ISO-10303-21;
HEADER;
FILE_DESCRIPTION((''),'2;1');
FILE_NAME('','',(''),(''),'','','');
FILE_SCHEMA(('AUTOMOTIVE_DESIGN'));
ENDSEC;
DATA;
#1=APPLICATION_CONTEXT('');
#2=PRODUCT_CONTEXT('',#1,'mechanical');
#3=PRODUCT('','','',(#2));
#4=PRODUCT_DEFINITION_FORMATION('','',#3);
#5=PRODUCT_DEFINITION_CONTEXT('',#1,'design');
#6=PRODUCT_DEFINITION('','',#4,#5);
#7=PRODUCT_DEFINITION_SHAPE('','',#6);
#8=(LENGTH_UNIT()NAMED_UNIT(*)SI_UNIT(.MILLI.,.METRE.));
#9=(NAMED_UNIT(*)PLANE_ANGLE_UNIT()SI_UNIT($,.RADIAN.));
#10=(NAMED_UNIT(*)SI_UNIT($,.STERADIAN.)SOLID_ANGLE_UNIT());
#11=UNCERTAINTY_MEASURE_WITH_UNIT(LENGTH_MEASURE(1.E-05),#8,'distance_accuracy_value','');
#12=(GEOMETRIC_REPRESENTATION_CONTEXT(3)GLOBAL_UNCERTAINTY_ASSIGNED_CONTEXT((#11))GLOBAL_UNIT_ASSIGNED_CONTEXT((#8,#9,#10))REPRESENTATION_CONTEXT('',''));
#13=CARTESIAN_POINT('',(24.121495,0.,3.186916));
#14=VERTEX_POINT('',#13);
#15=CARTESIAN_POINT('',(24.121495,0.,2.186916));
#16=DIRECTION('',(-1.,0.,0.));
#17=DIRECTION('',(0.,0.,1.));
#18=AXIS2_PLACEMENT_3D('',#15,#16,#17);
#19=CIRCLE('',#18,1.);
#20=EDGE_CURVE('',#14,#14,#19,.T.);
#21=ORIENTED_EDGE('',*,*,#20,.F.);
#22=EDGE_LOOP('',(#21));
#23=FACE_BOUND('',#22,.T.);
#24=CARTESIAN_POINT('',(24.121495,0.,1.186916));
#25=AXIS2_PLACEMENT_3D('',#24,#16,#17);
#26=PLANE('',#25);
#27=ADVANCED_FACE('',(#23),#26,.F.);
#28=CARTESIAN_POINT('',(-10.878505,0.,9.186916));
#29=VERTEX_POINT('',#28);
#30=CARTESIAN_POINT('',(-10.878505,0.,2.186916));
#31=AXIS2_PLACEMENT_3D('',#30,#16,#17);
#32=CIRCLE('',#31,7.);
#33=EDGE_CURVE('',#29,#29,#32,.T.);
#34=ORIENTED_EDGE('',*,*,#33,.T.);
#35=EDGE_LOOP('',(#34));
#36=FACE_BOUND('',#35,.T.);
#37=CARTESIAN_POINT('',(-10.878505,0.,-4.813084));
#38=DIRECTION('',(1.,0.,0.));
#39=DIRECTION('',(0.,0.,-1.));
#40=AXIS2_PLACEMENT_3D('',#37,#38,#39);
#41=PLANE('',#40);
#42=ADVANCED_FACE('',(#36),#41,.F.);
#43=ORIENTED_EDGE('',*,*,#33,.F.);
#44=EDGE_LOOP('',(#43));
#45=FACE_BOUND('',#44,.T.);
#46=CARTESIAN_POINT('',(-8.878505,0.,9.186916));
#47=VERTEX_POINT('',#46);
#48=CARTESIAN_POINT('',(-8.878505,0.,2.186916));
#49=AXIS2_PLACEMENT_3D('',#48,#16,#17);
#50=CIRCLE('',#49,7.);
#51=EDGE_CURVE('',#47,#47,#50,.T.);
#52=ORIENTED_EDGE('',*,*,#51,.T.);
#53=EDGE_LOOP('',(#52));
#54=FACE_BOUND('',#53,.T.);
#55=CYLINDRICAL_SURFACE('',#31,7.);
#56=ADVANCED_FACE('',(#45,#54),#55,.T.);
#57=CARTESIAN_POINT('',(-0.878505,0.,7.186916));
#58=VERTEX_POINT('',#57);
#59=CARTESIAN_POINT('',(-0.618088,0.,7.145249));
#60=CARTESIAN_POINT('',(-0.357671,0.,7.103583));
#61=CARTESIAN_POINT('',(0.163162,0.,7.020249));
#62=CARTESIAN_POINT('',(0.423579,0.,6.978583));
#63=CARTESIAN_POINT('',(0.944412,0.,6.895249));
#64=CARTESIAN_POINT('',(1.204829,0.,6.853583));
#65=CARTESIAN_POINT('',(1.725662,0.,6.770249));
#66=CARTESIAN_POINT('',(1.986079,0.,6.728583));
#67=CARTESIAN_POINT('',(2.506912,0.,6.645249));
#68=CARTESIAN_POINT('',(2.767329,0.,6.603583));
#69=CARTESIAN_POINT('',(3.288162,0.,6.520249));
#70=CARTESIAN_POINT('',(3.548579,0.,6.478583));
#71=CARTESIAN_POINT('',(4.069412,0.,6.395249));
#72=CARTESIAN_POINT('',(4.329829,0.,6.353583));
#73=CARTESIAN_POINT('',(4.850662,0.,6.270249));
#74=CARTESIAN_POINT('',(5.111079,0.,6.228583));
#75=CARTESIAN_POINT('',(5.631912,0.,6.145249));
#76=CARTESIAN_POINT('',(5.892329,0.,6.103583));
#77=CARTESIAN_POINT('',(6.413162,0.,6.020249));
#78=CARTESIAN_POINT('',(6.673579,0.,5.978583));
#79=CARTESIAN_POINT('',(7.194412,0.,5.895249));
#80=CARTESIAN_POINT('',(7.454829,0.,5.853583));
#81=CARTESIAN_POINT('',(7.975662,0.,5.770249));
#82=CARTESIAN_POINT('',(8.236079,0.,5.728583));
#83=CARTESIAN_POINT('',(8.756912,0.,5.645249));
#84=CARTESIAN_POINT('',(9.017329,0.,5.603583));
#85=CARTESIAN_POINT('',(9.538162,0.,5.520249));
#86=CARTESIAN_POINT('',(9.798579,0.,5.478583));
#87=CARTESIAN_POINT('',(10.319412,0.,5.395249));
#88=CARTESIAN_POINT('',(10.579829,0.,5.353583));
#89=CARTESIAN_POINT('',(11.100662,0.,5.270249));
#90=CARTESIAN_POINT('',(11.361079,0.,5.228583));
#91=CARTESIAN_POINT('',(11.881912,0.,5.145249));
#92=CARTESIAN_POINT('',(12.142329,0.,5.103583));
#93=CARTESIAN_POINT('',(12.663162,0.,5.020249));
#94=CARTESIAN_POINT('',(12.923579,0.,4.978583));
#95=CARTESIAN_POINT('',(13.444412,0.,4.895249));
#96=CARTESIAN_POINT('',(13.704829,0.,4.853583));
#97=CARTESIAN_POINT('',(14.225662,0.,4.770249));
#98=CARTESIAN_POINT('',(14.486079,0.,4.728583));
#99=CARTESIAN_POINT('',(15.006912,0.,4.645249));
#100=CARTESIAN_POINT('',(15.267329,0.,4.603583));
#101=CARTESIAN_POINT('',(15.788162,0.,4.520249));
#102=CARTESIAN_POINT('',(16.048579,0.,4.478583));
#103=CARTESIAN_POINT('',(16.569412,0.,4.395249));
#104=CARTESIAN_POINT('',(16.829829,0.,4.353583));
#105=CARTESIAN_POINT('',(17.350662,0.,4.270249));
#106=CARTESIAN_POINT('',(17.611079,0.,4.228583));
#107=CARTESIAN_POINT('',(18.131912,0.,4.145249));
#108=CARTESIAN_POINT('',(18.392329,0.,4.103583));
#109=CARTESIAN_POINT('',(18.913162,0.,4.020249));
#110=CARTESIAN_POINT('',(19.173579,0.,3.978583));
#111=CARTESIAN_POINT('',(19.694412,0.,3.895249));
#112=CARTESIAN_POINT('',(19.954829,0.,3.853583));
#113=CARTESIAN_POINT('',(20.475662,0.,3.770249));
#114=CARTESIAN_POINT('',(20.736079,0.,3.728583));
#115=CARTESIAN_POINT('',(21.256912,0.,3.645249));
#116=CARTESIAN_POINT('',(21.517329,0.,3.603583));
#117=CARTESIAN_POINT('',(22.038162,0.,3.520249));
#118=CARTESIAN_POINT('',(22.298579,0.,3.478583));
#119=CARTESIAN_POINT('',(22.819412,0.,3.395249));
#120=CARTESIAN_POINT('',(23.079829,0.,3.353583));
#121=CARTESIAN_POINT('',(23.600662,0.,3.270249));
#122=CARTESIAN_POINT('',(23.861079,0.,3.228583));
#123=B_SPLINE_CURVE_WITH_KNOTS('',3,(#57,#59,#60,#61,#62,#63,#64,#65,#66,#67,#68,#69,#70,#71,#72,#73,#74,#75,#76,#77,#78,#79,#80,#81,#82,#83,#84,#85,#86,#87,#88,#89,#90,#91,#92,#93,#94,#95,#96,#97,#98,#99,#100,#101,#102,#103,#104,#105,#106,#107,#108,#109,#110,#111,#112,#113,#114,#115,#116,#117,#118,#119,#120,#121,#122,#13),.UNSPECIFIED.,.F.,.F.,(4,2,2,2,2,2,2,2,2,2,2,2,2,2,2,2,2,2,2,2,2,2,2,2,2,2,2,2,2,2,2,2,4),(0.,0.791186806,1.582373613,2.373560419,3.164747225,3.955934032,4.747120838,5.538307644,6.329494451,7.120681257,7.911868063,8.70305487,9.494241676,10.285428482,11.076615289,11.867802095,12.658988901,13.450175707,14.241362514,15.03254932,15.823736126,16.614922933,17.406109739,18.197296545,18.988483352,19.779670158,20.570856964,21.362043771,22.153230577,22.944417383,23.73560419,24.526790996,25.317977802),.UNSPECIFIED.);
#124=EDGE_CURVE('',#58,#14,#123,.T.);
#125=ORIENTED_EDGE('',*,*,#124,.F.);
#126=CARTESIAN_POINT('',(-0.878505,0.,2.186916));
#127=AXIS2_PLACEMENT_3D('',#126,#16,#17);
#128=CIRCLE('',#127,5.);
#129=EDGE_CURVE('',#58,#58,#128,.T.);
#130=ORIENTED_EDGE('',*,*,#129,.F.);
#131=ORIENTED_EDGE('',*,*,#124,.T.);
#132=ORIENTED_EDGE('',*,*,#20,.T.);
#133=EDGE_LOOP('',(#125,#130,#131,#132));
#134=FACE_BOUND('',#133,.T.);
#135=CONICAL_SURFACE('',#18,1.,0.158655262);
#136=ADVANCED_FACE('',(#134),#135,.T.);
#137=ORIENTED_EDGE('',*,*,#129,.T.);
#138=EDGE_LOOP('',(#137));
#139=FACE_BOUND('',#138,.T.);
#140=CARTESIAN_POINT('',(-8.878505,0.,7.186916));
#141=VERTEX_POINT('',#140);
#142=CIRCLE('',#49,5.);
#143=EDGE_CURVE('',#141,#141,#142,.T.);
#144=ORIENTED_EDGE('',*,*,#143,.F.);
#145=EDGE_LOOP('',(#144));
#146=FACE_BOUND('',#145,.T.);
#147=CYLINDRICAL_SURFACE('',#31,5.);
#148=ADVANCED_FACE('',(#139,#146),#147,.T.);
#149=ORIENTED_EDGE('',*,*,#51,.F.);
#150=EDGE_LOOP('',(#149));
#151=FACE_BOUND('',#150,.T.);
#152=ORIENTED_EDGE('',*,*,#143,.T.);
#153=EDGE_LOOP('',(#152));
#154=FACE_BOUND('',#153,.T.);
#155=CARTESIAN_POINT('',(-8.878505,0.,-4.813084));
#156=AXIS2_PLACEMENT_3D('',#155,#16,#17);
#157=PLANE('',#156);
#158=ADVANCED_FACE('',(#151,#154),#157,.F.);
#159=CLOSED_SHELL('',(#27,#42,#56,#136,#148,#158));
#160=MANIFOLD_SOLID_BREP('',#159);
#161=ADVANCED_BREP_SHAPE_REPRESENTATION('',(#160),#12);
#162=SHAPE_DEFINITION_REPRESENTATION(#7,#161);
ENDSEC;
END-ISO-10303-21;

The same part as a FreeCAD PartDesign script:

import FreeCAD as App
import Part
import Sketcher
Q = App.Units.Quantity


def add_polygon(sketch, points):
    """Adds a closed chain of lines whose ends are joined by coincident constraints."""
    first, n = sketch.GeometryCount, len(points)
    for a, b in zip(points, points[1:] + points[:1]):
        sketch.addGeometry(Part.LineSegment(App.Vector(*a, 0), App.Vector(*b, 0)), False)
    for i in range(n):
        sketch.addConstraint(Sketcher.Constraint("Coincident", first + i, 2, first + (i + 1) % n, 1))

doc = App.newDocument("Part")
body = doc.addObject("PartDesign::Body", "Body")

sketch1 = body.newObject("Sketcher::SketchObject", "Sketch")
sketch1.AttachmentSupport = (doc.getObject("XZ_Plane"), [""])
sketch1.MapMode = "FlatFace"
add_polygon(sketch1, [(-8.9, -2.8), (-8.9, -4.8), (-10.9, -4.8), (-10.9, 2.2), (24.1, 2.2), (24.1, 1.2), (-0.9, -2.8)])
sketch1.addGeometry(Part.LineSegment(App.Vector(-10.9, 2.2, 0), App.Vector(24.1, 2.2, 0)), True)
sketch1.addConstraint(Sketcher.Constraint("Vertical", 0))
sketch1.addConstraint(Sketcher.Constraint("Horizontal", 1))
sketch1.addConstraint(Sketcher.Constraint("Vertical", 2))
sketch1.addConstraint(Sketcher.Constraint("Horizontal", 3))
sketch1.addConstraint(Sketcher.Constraint("Vertical", 4))
sketch1.addConstraint(Sketcher.Constraint("Horizontal", 6))
sketch1.addConstraint(Sketcher.Constraint("Horizontal", 7))
sketch1.addConstraint(Sketcher.Constraint("Coincident", 7, 1, 2, 2))
sketch1.addConstraint(Sketcher.Constraint("Vertical", 4, 2, 7, 2))
sketch1.addConstraint(Sketcher.Constraint("Equal", 1, 0))
sketch1.addConstraint(Sketcher.Constraint("DistanceX", 1, 2, 1, 1, Q("2 mm")))
sketch1.addConstraint(Sketcher.Constraint("DistanceX", 3, 1, 3, 2, Q("35 mm")))
sketch1.addConstraint(Sketcher.Constraint("DistanceX", 6, 2, 6, 1, Q("8 mm")))
sketch1.addConstraint(Sketcher.Constraint("DistanceY", 2, 1, 2, 2, Q("7 mm")))
sketch1.addConstraint(Sketcher.Constraint("DistanceY", 4, 2, 4, 1, Q("1 mm")))
sketch1.addConstraint(Sketcher.Constraint("DistanceX", 0, 2, -1, 1, Q("8.878505 mm")))
sketch1.addConstraint(Sketcher.Constraint("DistanceY", 0, 2, -1, 1, Q("4.813084 mm")))
revolution = body.newObject("PartDesign::Revolution", "Revolution")
revolution.Profile = sketch1
revolution.ReferenceAxis = (sketch1, ["Axis0"])
revolution.Angle = 360

doc.recompute()
